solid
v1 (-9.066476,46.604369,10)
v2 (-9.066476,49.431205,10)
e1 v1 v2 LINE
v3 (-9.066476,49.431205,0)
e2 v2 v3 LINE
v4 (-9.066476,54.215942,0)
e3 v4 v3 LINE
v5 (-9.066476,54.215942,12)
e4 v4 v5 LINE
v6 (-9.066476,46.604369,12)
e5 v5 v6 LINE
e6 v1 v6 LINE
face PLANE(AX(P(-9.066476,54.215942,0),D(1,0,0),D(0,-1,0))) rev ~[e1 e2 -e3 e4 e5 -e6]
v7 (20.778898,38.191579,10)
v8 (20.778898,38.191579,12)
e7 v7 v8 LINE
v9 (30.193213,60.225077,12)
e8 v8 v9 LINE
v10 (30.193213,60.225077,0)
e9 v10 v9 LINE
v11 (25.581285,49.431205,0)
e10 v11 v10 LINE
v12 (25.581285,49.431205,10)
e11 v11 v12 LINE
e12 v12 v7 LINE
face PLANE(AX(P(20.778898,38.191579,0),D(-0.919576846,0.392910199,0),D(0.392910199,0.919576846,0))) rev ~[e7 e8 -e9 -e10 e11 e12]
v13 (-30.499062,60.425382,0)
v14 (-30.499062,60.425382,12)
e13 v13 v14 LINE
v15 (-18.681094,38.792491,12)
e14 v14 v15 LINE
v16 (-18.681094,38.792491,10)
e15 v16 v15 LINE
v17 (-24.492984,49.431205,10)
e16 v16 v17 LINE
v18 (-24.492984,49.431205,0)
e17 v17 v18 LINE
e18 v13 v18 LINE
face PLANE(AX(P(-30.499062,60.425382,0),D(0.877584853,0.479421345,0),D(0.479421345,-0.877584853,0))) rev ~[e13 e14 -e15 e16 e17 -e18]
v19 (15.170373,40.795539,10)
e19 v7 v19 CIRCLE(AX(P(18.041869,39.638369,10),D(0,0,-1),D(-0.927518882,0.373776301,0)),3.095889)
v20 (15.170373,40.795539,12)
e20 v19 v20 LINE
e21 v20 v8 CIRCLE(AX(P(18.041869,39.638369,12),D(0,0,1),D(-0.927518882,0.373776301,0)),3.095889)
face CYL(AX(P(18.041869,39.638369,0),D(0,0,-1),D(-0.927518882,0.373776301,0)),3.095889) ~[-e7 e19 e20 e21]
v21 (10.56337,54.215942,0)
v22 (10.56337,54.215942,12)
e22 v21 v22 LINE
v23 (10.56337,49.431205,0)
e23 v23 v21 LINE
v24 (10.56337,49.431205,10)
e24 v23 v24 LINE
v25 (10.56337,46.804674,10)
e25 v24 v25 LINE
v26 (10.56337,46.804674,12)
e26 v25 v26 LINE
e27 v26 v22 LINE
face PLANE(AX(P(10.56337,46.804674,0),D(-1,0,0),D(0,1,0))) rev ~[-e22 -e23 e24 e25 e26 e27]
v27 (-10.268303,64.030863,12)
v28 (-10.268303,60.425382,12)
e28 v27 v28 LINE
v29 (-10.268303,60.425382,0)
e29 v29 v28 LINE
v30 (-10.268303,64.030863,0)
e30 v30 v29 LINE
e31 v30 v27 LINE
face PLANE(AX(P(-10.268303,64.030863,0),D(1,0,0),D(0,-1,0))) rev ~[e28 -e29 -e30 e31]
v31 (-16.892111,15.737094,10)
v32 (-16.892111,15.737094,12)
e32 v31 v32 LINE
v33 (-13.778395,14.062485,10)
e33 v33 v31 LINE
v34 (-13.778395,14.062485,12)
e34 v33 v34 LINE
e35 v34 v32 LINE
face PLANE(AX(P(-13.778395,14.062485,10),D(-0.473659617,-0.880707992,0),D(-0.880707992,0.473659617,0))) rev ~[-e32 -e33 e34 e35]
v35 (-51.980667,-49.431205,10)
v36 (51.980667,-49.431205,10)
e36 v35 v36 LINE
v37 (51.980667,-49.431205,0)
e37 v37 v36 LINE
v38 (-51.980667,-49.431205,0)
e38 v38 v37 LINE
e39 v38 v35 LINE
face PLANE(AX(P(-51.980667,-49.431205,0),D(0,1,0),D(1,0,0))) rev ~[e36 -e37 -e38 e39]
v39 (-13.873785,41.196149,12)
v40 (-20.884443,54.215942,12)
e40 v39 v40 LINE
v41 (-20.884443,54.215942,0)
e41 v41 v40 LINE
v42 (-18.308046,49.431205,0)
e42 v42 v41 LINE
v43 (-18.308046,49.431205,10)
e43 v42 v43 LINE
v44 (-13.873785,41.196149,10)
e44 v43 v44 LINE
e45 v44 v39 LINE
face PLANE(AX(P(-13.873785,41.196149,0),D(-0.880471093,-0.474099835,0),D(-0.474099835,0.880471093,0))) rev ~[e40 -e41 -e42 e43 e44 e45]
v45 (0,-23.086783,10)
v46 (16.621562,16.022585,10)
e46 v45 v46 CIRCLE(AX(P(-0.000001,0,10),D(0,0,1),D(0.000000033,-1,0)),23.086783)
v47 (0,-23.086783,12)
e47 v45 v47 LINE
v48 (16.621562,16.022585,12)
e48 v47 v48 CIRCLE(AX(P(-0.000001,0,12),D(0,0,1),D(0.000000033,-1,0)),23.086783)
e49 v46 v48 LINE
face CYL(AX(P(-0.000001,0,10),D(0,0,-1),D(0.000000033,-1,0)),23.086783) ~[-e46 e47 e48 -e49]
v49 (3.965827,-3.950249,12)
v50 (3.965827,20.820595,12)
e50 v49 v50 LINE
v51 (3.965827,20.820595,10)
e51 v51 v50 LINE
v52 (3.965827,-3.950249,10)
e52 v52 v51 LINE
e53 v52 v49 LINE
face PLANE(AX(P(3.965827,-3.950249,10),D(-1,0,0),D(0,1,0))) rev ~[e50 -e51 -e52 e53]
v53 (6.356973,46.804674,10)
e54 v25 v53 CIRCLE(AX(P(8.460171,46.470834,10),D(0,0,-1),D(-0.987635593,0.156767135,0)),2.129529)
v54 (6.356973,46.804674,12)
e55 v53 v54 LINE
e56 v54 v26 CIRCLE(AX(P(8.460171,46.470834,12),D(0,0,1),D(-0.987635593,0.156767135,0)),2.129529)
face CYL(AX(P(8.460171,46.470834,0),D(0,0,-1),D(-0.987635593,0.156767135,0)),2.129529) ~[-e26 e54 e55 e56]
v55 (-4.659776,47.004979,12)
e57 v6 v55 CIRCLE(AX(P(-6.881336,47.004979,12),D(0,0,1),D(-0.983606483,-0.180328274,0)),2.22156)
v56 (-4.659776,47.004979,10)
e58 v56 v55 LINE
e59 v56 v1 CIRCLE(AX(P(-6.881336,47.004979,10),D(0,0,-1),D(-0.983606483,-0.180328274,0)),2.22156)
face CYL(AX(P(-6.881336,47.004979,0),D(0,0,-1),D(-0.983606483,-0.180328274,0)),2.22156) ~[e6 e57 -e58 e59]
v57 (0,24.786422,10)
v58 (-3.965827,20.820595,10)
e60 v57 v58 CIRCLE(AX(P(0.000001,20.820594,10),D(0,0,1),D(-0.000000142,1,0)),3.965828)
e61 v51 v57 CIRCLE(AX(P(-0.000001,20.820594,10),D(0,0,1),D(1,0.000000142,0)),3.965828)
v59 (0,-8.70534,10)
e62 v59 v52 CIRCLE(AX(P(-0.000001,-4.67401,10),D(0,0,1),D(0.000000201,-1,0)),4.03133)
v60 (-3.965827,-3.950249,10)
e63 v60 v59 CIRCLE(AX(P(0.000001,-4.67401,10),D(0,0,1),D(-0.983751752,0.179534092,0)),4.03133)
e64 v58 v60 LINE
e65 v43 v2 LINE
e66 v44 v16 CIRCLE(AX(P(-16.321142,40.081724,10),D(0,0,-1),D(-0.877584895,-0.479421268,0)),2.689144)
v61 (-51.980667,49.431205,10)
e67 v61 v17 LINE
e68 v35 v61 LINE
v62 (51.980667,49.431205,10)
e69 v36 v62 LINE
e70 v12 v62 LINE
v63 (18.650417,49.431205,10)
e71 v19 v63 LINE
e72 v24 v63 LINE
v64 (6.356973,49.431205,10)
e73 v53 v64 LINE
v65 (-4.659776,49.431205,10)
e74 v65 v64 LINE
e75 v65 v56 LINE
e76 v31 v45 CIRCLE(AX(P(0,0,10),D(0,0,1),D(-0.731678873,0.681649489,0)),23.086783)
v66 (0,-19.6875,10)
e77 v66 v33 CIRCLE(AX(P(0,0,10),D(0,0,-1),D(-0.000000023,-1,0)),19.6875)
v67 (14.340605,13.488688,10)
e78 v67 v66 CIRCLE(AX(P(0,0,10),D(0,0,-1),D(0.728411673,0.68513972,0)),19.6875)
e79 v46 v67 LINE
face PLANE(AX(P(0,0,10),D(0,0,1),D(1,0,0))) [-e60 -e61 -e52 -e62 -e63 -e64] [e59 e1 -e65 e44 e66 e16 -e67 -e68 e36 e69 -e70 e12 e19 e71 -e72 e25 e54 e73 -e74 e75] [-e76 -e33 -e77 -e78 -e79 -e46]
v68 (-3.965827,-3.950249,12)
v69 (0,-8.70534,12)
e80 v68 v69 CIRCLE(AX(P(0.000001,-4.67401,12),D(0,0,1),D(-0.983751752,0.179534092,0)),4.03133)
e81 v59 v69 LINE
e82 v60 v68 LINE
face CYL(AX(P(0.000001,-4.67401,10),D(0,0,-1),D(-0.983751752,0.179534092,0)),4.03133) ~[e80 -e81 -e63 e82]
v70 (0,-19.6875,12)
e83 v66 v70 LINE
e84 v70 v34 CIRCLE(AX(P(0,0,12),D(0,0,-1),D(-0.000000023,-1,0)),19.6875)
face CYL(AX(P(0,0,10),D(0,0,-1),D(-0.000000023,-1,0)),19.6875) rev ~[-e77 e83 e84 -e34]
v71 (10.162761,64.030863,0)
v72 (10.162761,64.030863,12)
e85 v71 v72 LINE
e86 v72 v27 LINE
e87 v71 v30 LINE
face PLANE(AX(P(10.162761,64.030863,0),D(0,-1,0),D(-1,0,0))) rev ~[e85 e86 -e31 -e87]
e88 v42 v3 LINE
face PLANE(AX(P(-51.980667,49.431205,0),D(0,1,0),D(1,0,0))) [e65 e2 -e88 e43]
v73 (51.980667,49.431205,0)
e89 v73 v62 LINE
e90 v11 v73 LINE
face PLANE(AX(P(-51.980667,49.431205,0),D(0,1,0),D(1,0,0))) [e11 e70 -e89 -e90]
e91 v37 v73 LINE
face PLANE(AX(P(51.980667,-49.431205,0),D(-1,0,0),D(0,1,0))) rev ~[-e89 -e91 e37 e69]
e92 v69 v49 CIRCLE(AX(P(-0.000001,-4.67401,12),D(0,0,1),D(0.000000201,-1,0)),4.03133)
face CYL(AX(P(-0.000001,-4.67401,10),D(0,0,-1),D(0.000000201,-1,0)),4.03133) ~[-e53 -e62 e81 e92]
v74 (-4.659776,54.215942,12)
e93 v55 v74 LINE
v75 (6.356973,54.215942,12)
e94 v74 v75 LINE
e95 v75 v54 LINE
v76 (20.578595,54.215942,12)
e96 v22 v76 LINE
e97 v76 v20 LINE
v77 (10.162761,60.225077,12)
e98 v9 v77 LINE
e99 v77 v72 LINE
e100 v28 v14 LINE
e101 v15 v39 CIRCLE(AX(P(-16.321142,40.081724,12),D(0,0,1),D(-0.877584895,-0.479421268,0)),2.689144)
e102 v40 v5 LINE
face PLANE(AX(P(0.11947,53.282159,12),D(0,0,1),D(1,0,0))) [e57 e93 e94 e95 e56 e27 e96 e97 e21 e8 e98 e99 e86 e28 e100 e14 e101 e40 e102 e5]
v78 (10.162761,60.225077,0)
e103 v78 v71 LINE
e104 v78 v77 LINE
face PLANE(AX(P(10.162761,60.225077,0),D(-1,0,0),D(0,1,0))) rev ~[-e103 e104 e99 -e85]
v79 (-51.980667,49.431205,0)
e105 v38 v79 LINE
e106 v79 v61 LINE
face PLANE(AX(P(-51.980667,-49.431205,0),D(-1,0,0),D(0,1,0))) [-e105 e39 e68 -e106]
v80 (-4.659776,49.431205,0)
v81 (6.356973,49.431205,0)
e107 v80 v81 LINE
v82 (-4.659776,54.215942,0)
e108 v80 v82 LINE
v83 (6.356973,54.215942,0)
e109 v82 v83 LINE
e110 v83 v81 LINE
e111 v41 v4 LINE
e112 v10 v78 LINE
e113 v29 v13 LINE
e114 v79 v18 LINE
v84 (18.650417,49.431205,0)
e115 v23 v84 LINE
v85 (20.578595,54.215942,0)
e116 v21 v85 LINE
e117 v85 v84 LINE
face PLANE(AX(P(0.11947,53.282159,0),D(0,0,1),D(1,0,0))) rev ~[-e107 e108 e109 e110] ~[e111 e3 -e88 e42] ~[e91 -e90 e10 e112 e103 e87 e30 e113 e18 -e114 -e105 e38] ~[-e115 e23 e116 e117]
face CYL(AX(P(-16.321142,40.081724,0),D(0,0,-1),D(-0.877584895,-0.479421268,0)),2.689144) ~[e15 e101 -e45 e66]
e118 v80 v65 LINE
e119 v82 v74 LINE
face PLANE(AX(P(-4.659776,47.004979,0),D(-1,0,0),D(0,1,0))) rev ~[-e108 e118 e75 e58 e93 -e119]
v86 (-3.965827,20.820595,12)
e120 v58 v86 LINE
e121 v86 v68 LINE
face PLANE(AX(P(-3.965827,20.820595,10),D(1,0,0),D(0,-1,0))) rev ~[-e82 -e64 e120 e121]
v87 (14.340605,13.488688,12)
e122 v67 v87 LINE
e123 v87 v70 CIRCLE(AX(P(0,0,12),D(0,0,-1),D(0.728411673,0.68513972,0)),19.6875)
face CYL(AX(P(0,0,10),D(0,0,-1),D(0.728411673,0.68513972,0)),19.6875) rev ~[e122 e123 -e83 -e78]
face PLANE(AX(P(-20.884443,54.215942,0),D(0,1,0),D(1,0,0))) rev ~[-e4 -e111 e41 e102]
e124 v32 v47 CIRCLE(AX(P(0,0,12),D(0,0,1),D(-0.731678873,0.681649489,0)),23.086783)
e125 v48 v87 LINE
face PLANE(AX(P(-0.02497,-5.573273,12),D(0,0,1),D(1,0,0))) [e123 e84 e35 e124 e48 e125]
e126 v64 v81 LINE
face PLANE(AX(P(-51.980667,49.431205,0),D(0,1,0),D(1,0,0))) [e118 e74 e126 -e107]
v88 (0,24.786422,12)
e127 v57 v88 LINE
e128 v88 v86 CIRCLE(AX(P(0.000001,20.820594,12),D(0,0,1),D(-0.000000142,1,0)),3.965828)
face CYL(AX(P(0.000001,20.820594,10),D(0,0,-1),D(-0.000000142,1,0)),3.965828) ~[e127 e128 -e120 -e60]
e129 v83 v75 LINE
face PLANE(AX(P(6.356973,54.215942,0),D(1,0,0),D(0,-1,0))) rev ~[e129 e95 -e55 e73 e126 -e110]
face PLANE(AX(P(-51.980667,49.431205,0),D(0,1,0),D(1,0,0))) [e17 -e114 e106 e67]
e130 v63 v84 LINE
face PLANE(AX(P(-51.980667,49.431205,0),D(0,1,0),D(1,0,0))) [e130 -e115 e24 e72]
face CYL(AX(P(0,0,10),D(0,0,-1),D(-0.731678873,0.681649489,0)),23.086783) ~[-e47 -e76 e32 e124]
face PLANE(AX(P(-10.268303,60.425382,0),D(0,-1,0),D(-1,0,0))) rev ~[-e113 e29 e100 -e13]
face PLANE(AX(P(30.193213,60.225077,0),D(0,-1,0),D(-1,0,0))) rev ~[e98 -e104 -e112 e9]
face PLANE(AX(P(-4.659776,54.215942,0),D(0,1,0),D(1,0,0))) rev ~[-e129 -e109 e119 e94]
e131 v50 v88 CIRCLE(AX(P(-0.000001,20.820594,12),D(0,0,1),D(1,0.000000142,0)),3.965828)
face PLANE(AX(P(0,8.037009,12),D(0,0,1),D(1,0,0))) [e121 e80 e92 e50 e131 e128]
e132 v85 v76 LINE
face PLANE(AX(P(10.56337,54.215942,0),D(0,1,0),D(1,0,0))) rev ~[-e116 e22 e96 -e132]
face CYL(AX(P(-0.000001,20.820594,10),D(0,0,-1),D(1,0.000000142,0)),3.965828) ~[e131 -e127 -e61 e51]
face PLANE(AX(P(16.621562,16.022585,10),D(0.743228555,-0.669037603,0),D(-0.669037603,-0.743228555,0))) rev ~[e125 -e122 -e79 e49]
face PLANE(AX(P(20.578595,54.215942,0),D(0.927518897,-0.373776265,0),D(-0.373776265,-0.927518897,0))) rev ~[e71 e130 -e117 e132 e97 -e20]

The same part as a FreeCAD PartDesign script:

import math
import FreeCAD as App
import Part
import Sketcher

V = App.Vector
Q = App.Units.Quantity

doc = App.newDocument("Part")
params = doc.addObject("Spreadsheet::Sheet", "Params")
for row, (alias, value) in enumerate([
    ("pad1_length", "10 mm"),
    ("pad2_length", "2 mm"),
    ("pad3_length", "2 mm"),
    ("pad4_length", "12 mm"),
], start=1):
    params.set(f"A{row}", alias)
    params.set(f"B{row}", "=" + value)
    params.setAlias(f"B{row}", alias)

body = doc.addObject("PartDesign::Body", "Body")

# Sketch on XY plane
sketch1 = body.newObject("Sketcher::SketchObject", "Sketch")
sketch1.AttachmentSupport = (doc.getObject("XY_Plane"), [""])
sketch1.MapMode = "FlatFace"
sketch1.addGeometry([
    Part.LineSegment(V(-52, 49, 0), V(-52, -49, 0)),
    Part.LineSegment(V(-52, -49, 0), V(52, -49, 0)),
    Part.LineSegment(V(52, -49, 0), V(52, 49, 0)),
    Part.LineSegment(V(52, 49, 0), V(-52, 49, 0)),
], False)
sketch1.addConstraint([
    Sketcher.Constraint("Coincident", 0, 2, 1, 1),
    Sketcher.Constraint("Coincident", 1, 2, 2, 1),
    Sketcher.Constraint("Coincident", 2, 2, 3, 1),
    Sketcher.Constraint("Coincident", 3, 2, 0, 1),
    Sketcher.Constraint("Vertical", 0),
    Sketcher.Constraint("Horizontal", 1),
    Sketcher.Constraint("Vertical", 2),
    Sketcher.Constraint("Horizontal", 3),
    Sketcher.Constraint("Symmetric", 0, 2, 2, 2, -1, 1),
    Sketcher.Constraint("DistanceY", 0, 2, 0, 1, Q("98.86241 mm")),
    Sketcher.Constraint("DistanceX", 1, 1, 1, 2, Q("103.961334 mm")),
])
pad1 = body.newObject("PartDesign::Pad", "Pad")
pad1.Profile = sketch1
pad1.setExpression("Length", "Params.pad1_length")

# Sketch on XY plane
sketch2 = body.newObject("Sketcher::SketchObject", "Sketch001")
sketch2.AttachmentSupport = (doc.getObject("XY_Plane"), [""])
sketch2.MapMode = "FlatFace"
sketch2.AttachmentOffset = App.Placement(V(0, 0, 10), App.Rotation())
sketch2.addGeometry([
    Part.ArcOfCircle(Part.Circle(V(0, 0, 0), V(0, 0, 1), 23.1), math.radians(137), math.radians(270)),  # 0
    Part.ArcOfCircle(Part.Circle(V(0, 0, 0), V(0, 0, 1), 23.1), math.radians(-90), math.radians(44)),  # 1
    Part.LineSegment(V(16.6, 16, 0), V(14.3, 13.5, 0)),  # 2
    Part.ArcOfCircle(Part.Circle(V(0, 0, 0), V(0, 0, 1), 19.7), math.radians(-90), math.radians(43)),  # 3
    Part.ArcOfCircle(Part.Circle(V(0, 0, 0), V(0, 0, 1), 19.7), math.radians(134), math.radians(270)),  # 4
    Part.LineSegment(V(-13.8, 14.1, 0), V(-16.9, 15.7, 0)),  # 5
], False)
sketch2.addConstraint([
    Sketcher.Constraint("Tangent", 0, 2, 1, 1),
    Sketcher.Constraint("Coincident", 1, 2, 2, 1),
    Sketcher.Constraint("Coincident", 2, 2, 3, 2),
    Sketcher.Constraint("Tangent", 3, 1, 4, 2),
    Sketcher.Constraint("Coincident", 4, 1, 5, 1),
    Sketcher.Constraint("Coincident", 5, 2, 0, 1),
    Sketcher.Constraint("Coincident", 0, 3, -1, 1),
    Sketcher.Constraint("Coincident", 3, 3, -1, 1),
    Sketcher.Constraint("Equal", 0, 1),
    Sketcher.Constraint("Equal", 3, 4),
    Sketcher.Constraint("PointOnObject", 0, 2, -2),
    Sketcher.Constraint("PointOnObject", 3, 1, -2),
    Sketcher.Constraint("Radius", 3, Q("19.6875 mm")),
    Sketcher.Constraint("Radius", 0, Q("23.086783 mm")),
    Sketcher.Constraint("DistanceX", 4, 1, 2, 2, Q("28.119 mm")),
    Sketcher.Constraint("Distance", 2, Q("3.409311 mm")),
    Sketcher.Constraint("Distance", 5, Q("3.535469 mm")),
    Sketcher.Constraint("DistanceX", -1, 1, 1, 2, Q("16.621562 mm")),
])
pad2 = body.newObject("PartDesign::Pad", "Pad001")
pad2.Profile = sketch2
pad2.setExpression("Length", "Params.pad2_length")

# Sketch on XY plane
sketch3 = body.newObject("Sketcher::SketchObject", "Sketch002")
sketch3.AttachmentSupport = (doc.getObject("XY_Plane"), [""])
sketch3.MapMode = "FlatFace"
sketch3.AttachmentOffset = App.Placement(V(0, 0, 10), App.Rotation())
sketch3.addGeometry([
    Part.ArcOfCircle(Part.Circle(V(0, -4.7, 0), V(0, 0, 1), 4), math.radians(170), math.radians(270)),  # 0
    Part.ArcOfCircle(Part.Circle(V(0, -4.7, 0), V(0, 0, 1), 4), math.radians(-90), math.radians(10)),  # 1
    Part.LineSegment(V(4, -4, 0), V(4, 20.8, 0)),  # 2
    Part.ArcOfCircle(Part.Circle(V(0, 20.8, 0), V(0, 0, 1), 4), math.radians(0), math.radians(90)),  # 3
    Part.ArcOfCircle(Part.Circle(V(0, 20.8, 0), V(0, 0, 1), 4), math.radians(90), math.radians(180)),  # 4
    Part.LineSegment(V(-4, 20.8, 0), V(-4, -4, 0)),  # 5
], False)
sketch3.addConstraint([
    Sketcher.Constraint("Tangent", 0, 2, 1, 1),
    Sketcher.Constraint("Coincident", 1, 2, 2, 1),
    Sketcher.Constraint("Tangent", 2, 2, 3, 1),
    Sketcher.Constraint("Tangent", 3, 2, 4, 1),
    Sketcher.Constraint("Tangent", 4, 2, 5, 1),
    Sketcher.Constraint("Coincident", 5, 2, 0, 1),
    Sketcher.Constraint("Vertical", 2),
    Sketcher.Constraint("Vertical", 5),
    Sketcher.Constraint("Equal", 0, 1),
    Sketcher.Constraint("Equal", 3, 4),
    Sketcher.Constraint("Symmetric", 1, 2, 5, 2, -2),
    Sketcher.Constraint("PointOnObject", 0, 2, -2),
    Sketcher.Constraint("PointOnObject", 3, 2, -2),
    Sketcher.Constraint("Radius", 0, Q("4.03133 mm")),
    Sketcher.Constraint("Radius", 3, Q("3.965828 mm")),
    Sketcher.Constraint("DistanceY", 2, 1, 2, 2, Q("24.770844 mm")),
    Sketcher.Constraint("DistanceY", 0, 3, -1, 1, Q("4.67401 mm")),
])
pad3 = body.newObject("PartDesign::Pad", "Pad002")
pad3.Profile = sketch3
pad3.setExpression("Length", "Params.pad3_length")

# Sketch on XY plane
sketch4 = body.newObject("Sketcher::SketchObject", "Sketch003")
sketch4.AttachmentSupport = (doc.getObject("XY_Plane"), [""])
sketch4.MapMode = "FlatFace"
sketch4.addGeometry([
    Part.LineSegment(V(10.162761, 64.030863, 0), V(-10.268303, 64.030863, 0)),  # 0
    Part.LineSegment(V(-10.268303, 64.030863, 0), V(-10.268303, 60.425382, 0)),  # 1
    Part.LineSegment(V(-10.268303, 60.425382, 0), V(-30.499062, 60.425382, 0)),  # 2
    Part.LineSegment(V(-30.499062, 60.425382, 0), V(-18.681094, 38.792491, 0)),  # 3
    Part.ArcOfCircle(Part.Circle(V(-16.321142, 40.081724, 0), V(0, 0, 1), 2.689144), math.radians(-151.352389), math.radians(24.482558)),  # 4
    Part.LineSegment(V(-13.873785, 41.196149, 0), V(-20.884443, 54.215942, 0)),  # 5
    Part.LineSegment(V(-20.884443, 54.215942, 0), V(-9.066476, 54.215942, 0)),  # 6
    Part.LineSegment(V(-9.066476, 54.215942, 0), V(-9.066476, 46.604369, 0)),  # 7
    Part.ArcOfCircle(Part.Circle(V(-6.881336, 47.004979, 0), V(0, 0, 1), 2.22156), math.radians(-169.611119), math.radians(0)),  # 8
    Part.LineSegment(V(-4.659776, 47.004979, 0), V(-4.659776, 54.215942, 0)),  # 9
    Part.LineSegment(V(-4.659776, 54.215942, 0), V(6.356973, 54.215942, 0)),  # 10
    Part.LineSegment(V(6.356973, 54.215942, 0), V(6.356973, 46.804674, 0)),  # 11
    Part.ArcOfCircle(Part.Circle(V(8.460171, 46.470834, 0), V(0, 0, 1), 2.129529), math.radians(170.980701), math.radians(369.019299)),  # 12
    Part.LineSegment(V(10.56337, 46.804674, 0), V(10.56337, 54.215942, 0)),  # 13
    Part.LineSegment(V(10.56337, 54.215942, 0), V(20.578595, 54.215942, 0)),  # 14
    Part.LineSegment(V(20.578595, 54.215942, 0), V(15.170373, 40.795539, 0)),  # 15
    Part.ArcOfCircle(Part.Circle(V(18.041869, 39.638369, 0), V(0, 0, 1), 3.095889), math.radians(158.051299), math.radians(332.13913)),  # 16
    Part.LineSegment(V(20.778898, 38.191579, 0), V(30.193213, 60.225077, 0)),  # 17
    Part.LineSegment(V(30.193213, 60.225077, 0), V(10.162761, 60.225077, 0)),  # 18
    Part.LineSegment(V(10.162761, 60.225077, 0), V(10.162761, 64.030863, 0)),  # 19
], False)
sketch4.addConstraint([
    Sketcher.Constraint("Coincident", 0, 2, 1, 1),
    Sketcher.Constraint("Coincident", 1, 2, 2, 1),
    Sketcher.Constraint("Coincident", 2, 2, 3, 1),
    Sketcher.Constraint("Coincident", 3, 2, 4, 1),
    Sketcher.Constraint("Coincident", 4, 2, 5, 1),
    Sketcher.Constraint("Coincident", 5, 2, 6, 1),
    Sketcher.Constraint("Coincident", 6, 2, 7, 1),
    Sketcher.Constraint("Coincident", 7, 2, 8, 1),
    Sketcher.Constraint("Coincident", 8, 2, 9, 1),
    Sketcher.Constraint("Coincident", 9, 2, 10, 1),
    Sketcher.Constraint("Coincident", 10, 2, 11, 1),
    Sketcher.Constraint("Coincident", 11, 2, 12, 1),
    Sketcher.Constraint("Coincident", 12, 2, 13, 1),
    Sketcher.Constraint("Coincident", 13, 2, 14, 1),
    Sketcher.Constraint("Coincident", 14, 2, 15, 1),
    Sketcher.Constraint("Coincident", 15, 2, 16, 1),
    Sketcher.Constraint("Coincident", 16, 2, 17, 1),
    Sketcher.Constraint("Coincident", 17, 2, 18, 1),
    Sketcher.Constraint("Coincident", 18, 2, 19, 1),
    Sketcher.Constraint("Coincident", 19, 2, 0, 1),
    Sketcher.Constraint("Horizontal", 0),
    Sketcher.Constraint("Vertical", 1),
    Sketcher.Constraint("Horizontal", 2),
    Sketcher.Constraint("Horizontal", 6),
    Sketcher.Constraint("Vertical", 7),
    Sketcher.Constraint("Vertical", 9),
    Sketcher.Constraint("Horizontal", 10),
    Sketcher.Constraint("Vertical", 11),
    Sketcher.Constraint("Vertical", 13),
    Sketcher.Constraint("Horizontal", 14),
    Sketcher.Constraint("Horizontal", 18),
    Sketcher.Constraint("Vertical", 19),
    Sketcher.Constraint("Radius", 8, Q("2.22156 mm")),
    Sketcher.Constraint("Radius", 12, Q("2.129529 mm")),
    Sketcher.Constraint("Radius", 16, Q("3.095889 mm")),
    Sketcher.Constraint("Radius", 4, Q("2.689144 mm")),
    Sketcher.Constraint("DistanceX", 2, 2, 2, 1, Q("20.230759 mm")),
    Sketcher.Constraint("DistanceX", 10, 1, 10, 2, Q("11.016749 mm")),
    Sketcher.Constraint("DistanceY", 1, 2, 1, 1, Q("3.605481 mm")),
    Sketcher.Constraint("DistanceX", 5, 2, 4, 3, Q("4.563301 mm")),
    Sketcher.Constraint("DistanceX", 7, 2, 8, 2, Q("4.4067 mm")),
    Sketcher.Constraint("DistanceX", 10, 2, 12, 3, Q("2.103198 mm")),
    Sketcher.Constraint("DistanceX", 12, 3, 12, 2, Q("2.103199 mm")),
    Sketcher.Constraint("DistanceX", 12, 2, 16, 3, Q("7.478499 mm")),
    Sketcher.Constraint("DistanceX", 12, 3, 15, 2, Q("6.710202 mm")),
    Sketcher.Constraint("DistanceX", 0, 2, 0, 1, Q("20.431064 mm")),
    Sketcher.Constraint("DistanceX", 6, 1, 6, 2, Q("11.817967 mm")),
    Sketcher.Constraint("DistanceX", 14, 1, 14, 2, Q("10.015225 mm")),
    Sketcher.Constraint("DistanceX", 18, 2, 18, 1, Q("20.030452 mm")),
    Sketcher.Constraint("DistanceY", 7, 2, 7, 1, Q("7.611573 mm")),
    Sketcher.Constraint("DistanceY", 9, 1, 9, 2, Q("7.210963 mm")),
    Sketcher.Constraint("DistanceY", 11, 2, 11, 1, Q("7.411268 mm")),
    Sketcher.Constraint("DistanceY", 13, 1, 13, 2, Q("7.411268 mm")),
    Sketcher.Constraint("DistanceY", 19, 1, 19, 2, Q("3.805786 mm")),
    Sketcher.Constraint("DistanceX", 4, 3, -1, 1, Q("16.321142 mm")),
    Sketcher.Constraint("DistanceY", -1, 1, 8, 3, Q("47.004979 mm")),
    Sketcher.Constraint("DistanceY", -1, 1, 16, 3, Q("39.638369 mm")),
    Sketcher.Constraint("DistanceX", 2, 2, -1, 1, Q("30.499062 mm")),
    Sketcher.Constraint("DistanceY", -1, 1, 3, 2, Q("38.792491 mm")),
    Sketcher.Constraint("DistanceY", -1, 1, 4, 2, Q("41.196149 mm")),
    Sketcher.Constraint("DistanceY", -1, 1, 8, 2, Q("47.004979 mm")),
    Sketcher.Constraint("DistanceY", -1, 1, 16, 2, Q("38.191579 mm")),
    Sketcher.Constraint("DistanceY", 4, 3, 12, 3, Q("6.38911 mm")),
    Sketcher.Constraint("DistanceY", 4, 3, 0, 2, Q("23.949139 mm")),
])
pad4 = body.newObject("PartDesign::Pad", "Pad003")
pad4.Profile = sketch4
pad4.setExpression("Length", "Params.pad4_length")

doc.recompute()
